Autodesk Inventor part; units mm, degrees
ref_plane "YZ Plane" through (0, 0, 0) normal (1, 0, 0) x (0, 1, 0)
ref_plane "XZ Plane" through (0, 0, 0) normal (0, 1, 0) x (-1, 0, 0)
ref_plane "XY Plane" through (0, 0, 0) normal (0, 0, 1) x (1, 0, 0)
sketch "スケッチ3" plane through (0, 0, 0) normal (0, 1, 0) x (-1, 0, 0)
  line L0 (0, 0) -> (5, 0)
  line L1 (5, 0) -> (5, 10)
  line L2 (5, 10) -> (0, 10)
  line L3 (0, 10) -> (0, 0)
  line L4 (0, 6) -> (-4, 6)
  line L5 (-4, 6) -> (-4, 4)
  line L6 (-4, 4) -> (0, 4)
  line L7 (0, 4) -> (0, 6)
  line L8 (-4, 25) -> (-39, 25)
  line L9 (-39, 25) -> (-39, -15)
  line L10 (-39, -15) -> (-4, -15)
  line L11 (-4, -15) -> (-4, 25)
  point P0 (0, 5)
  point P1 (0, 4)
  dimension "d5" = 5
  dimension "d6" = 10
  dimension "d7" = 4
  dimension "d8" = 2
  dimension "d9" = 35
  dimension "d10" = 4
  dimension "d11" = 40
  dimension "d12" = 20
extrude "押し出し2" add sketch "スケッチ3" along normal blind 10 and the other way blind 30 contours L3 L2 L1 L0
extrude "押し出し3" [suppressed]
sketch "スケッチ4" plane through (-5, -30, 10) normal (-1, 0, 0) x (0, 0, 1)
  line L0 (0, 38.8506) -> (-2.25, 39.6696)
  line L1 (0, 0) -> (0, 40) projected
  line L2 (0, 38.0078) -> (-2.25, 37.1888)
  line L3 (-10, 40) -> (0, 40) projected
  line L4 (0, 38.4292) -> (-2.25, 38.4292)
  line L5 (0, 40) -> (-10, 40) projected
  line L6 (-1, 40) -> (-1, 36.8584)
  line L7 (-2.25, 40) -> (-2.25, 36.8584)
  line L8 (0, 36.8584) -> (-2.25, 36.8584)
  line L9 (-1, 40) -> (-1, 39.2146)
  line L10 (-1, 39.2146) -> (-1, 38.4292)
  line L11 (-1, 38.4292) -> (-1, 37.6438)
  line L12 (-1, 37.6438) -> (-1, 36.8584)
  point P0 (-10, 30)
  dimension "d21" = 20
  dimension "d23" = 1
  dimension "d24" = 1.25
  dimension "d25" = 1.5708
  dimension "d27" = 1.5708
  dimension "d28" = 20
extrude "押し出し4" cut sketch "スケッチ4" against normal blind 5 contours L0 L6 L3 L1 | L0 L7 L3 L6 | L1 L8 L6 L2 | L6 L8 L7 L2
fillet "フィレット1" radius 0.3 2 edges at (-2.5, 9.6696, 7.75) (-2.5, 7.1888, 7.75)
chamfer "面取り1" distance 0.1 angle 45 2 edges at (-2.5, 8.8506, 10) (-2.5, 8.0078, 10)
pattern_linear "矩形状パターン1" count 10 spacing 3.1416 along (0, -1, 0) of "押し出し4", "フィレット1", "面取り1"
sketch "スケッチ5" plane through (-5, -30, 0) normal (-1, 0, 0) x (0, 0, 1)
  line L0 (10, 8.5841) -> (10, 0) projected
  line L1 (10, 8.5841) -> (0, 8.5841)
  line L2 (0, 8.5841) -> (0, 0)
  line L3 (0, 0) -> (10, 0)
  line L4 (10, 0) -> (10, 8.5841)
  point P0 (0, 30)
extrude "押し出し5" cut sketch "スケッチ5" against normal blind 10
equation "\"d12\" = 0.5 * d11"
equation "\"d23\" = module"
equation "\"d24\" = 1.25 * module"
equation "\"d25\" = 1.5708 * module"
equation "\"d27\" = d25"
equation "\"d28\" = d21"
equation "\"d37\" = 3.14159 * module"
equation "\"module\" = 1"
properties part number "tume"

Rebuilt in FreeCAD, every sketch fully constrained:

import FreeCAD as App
import Part
import Sketcher


def edges_at(feature, points):
    """Names of the edges that pass closest to the given points."""
    edges = feature.Shape.Edges
    near = lambda p: min(range(len(edges)), key=lambda i: edges[i].distToShape(Part.Vertex(*p))[0])
    return sorted({f"Edge{near(p) + 1}" for p in points})


def add_polygon(sketch, points):
    """Adds a closed chain of lines whose ends are joined by coincident constraints."""
    first, n = sketch.GeometryCount, len(points)
    for a, b in zip(points, points[1:] + points[:1]):
        sketch.addGeometry(Part.LineSegment(App.Vector(*a, 0), App.Vector(*b, 0)), False)
    for i in range(n):
        sketch.addConstraint(Sketcher.Constraint("Coincident", first + i, 2, first + (i + 1) % n, 1))

doc = App.newDocument("Part")
body = doc.addObject("PartDesign::Body", "Body")

# Sketch on XZ plane
sketch1 = body.newObject("Sketcher::SketchObject", "Sketch")
sketch1.AttachmentSupport = (doc.getObject("XZ_Plane"), [""])
sketch1.MapMode = "FlatFace"
add_polygon(sketch1, [(0, 10), (0, 0), (-5, 0), (-5, 10)])  # lines 0-3
sketch1.addConstraint(Sketcher.Constraint("Vertical", 0))
sketch1.addConstraint(Sketcher.Constraint("Horizontal", 1))
sketch1.addConstraint(Sketcher.Constraint("Vertical", 2))
sketch1.addConstraint(Sketcher.Constraint("Horizontal", 3))
sketch1.addConstraint(Sketcher.Constraint("Coincident", 0, 2, -1, 1))
sketch1.addConstraint(Sketcher.Constraint("DistanceX", 1, 2, 1, 1, 5.0))
sketch1.addConstraint(Sketcher.Constraint("DistanceY", 0, 2, 0, 1, 10.0))
pad1 = body.newObject("PartDesign::Pad", "Pad")
pad1.Profile = sketch1
pad1.Type = "TwoLengths"
pad1.Length = 10
pad1.Length2 = 30
pad1.Reversed = True

# Sketch on YZ plane
sketch2 = body.newObject("Sketcher::SketchObject", "Sketch001")
sketch2.AttachmentSupport = (doc.getObject("YZ_Plane"), [""])
sketch2.MapMode = "FlatFace"
sketch2.AttachmentOffset = App.Placement(App.Vector(0, 0, -5), App.Rotation())
add_polygon(sketch2, [(8.85, 10), (10, 10), (10, 7.75), (9.67, 7.75)])  # lines 0-3
add_polygon(sketch2, [(6.86, 10), (8.01, 10), (7.19, 7.75), (6.86, 7.75)])  # lines 4-7
sketch2.addConstraint(Sketcher.Constraint("Horizontal", 0))
sketch2.addConstraint(Sketcher.Constraint("Vertical", 1))
sketch2.addConstraint(Sketcher.Constraint("Horizontal", 2))
sketch2.addConstraint(Sketcher.Constraint("Horizontal", 4))
sketch2.addConstraint(Sketcher.Constraint("Horizontal", 6))
sketch2.addConstraint(Sketcher.Constraint("Vertical", 7))
sketch2.addConstraint(Sketcher.Constraint("Horizontal", 3, 2, 4, 2))
sketch2.addConstraint(Sketcher.Constraint("Horizontal", 2, 2, 5, 2))
sketch2.addConstraint(Sketcher.Constraint("Equal", 0, 4))
sketch2.addConstraint(Sketcher.Constraint("Equal", 2, 6))
sketch2.addConstraint(Sketcher.Constraint("DistanceX", -1, 1, 0, 2, 10.0))
sketch2.addConstraint(Sketcher.Constraint("DistanceY", -1, 1, 0, 2, 10.0))
sketch2.addConstraint(Sketcher.Constraint("DistanceY", 1, 2, 1, 1, 2.25))
sketch2.addConstraint(Sketcher.Constraint("DistanceX", 0, 1, 0, 2, 1.1494))
sketch2.addConstraint(Sketcher.Constraint("DistanceX", 2, 2, 2, 1, 0.3304))
sketch2.addConstraint(Sketcher.Constraint("DistanceX", -1, 1, 4, 2, 8.0078))
pocket1 = body.newObject("PartDesign::Pocket", "Pocket")
pocket1.Profile = sketch2
pocket1.Length = 5
pocket1.Reversed = True
doc.recompute()

fillet = body.newObject("PartDesign::Fillet", "Fillet")
fillet.Base = (pocket1, edges_at(pocket1, [(-2.5, 9.67, 7.75), (-2.5, 7.189, 7.75)]))
fillet.Radius = 0.3
doc.recompute()

chamfer = body.newObject("PartDesign::Chamfer", "Chamfer")
chamfer.Base = (fillet, edges_at(fillet, [(-2.5, 8.851, 10), (-2.5, 8.008, 10)]))
chamfer.Size = 0.1
doc.recompute()

linearpattern = body.newObject("PartDesign::LinearPattern", "LinearPattern")
linearpattern.Originals = [pocket1, fillet, chamfer]
linearpattern.Direction = (doc.getObject("Y_Axis"), [""])
linearpattern.Mode = "offset"
linearpattern.Offset = 3.1416
linearpattern.Occurrences = 10
linearpattern.Reversed = True
body.Tip = linearpattern

# Sketch on YZ plane
sketch3 = body.newObject("Sketcher::SketchObject", "Sketch002")
sketch3.AttachmentSupport = (doc.getObject("YZ_Plane"), [""])
sketch3.MapMode = "FlatFace"
sketch3.AttachmentOffset = App.Placement(App.Vector(0, 0, -5), App.Rotation())
add_polygon(sketch3, [(-30, 10), (-21, 10), (-21, 0), (-30, 0)])  # lines 0-3
sketch3.addConstraint(Sketcher.Constraint("Horizontal", 0))
sketch3.addConstraint(Sketcher.Constraint("Vertical", 1))
sketch3.addConstraint(Sketcher.Constraint("Horizontal", 2))
sketch3.addConstraint(Sketcher.Constraint("Vertical", 3))
sketch3.addConstraint(Sketcher.Constraint("PointOnObject", 1, 2, -1))
sketch3.addConstraint(Sketcher.Constraint("DistanceY", 1, 2, 1, 1, 10.0))
sketch3.addConstraint(Sketcher.Constraint("DistanceX", 2, 2, -1, 1, 30.0))
sketch3.addConstraint(Sketcher.Constraint("DistanceX", 0, 1, 0, 2, 8.584))
pocket2 = body.newObject("PartDesign::Pocket", "Pocket001")
pocket2.Profile = sketch3
pocket2.Length = 10
pocket2.Reversed = True

doc.recompute()
